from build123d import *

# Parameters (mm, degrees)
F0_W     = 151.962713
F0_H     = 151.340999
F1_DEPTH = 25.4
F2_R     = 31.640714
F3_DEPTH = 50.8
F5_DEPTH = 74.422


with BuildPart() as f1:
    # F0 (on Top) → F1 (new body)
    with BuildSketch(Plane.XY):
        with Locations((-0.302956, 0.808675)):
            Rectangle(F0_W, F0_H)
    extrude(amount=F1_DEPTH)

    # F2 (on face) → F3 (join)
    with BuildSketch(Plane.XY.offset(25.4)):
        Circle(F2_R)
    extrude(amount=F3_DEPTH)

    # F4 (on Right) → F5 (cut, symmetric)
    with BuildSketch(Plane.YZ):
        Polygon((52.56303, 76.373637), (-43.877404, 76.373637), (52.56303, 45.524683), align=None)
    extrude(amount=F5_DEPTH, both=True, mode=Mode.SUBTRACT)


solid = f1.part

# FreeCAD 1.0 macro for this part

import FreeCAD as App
import Part
import Sketcher
from FreeCAD import Vector
Q = App.Units.Quantity

doc = App.newDocument("Part")
params = doc.addObject("Spreadsheet::Sheet", "Params")
for row, (alias, value) in enumerate([
    ("pad1_length", "1 in"),
    ("pad2_length", "2 in"),
    ("pocket1_length", "5.86 in"),
], start=1):
    params.set(f"A{row}", alias)
    params.set(f"B{row}", "=" + value)
    params.setAlias(f"B{row}", alias)

body = doc.addObject("PartDesign::Body", "Body")

# Sketch on XY plane
sketch1 = body.newObject("Sketcher::SketchObject", "Sketch")
sketch1.AttachmentSupport = (doc.getObject("XY_Plane"), [""])
sketch1.MapMode = "FlatFace"
sketch1.addGeometry(Part.LineSegment(Vector(-76, 76, 0), Vector(-76, -75, 0)), False)
sketch1.addGeometry(Part.LineSegment(Vector(-76, -75, 0), Vector(76, -75, 0)), False)
sketch1.addGeometry(Part.LineSegment(Vector(76, -75, 0), Vector(76, 76, 0)), False)
sketch1.addGeometry(Part.LineSegment(Vector(76, 76, 0), Vector(-76, 76, 0)), False)
sketch1.addConstraint(Sketcher.Constraint("Coincident", 0, 2, 1, 1))
sketch1.addConstraint(Sketcher.Constraint("Coincident", 1, 2, 2, 1))
sketch1.addConstraint(Sketcher.Constraint("Coincident", 2, 2, 3, 1))
sketch1.addConstraint(Sketcher.Constraint("Coincident", 3, 2, 0, 1))
sketch1.addConstraint(Sketcher.Constraint("Vertical", 0))
sketch1.addConstraint(Sketcher.Constraint("Horizontal", 1))
sketch1.addConstraint(Sketcher.Constraint("Vertical", 2))
sketch1.addConstraint(Sketcher.Constraint("Horizontal", 3))
sketch1.addConstraint(Sketcher.Constraint("DistanceY", 0, 2, 0, 1, Q("151.340999 mm")))
sketch1.addConstraint(Sketcher.Constraint("DistanceX", -1, 1, 1, 2, Q("75.6784 mm")))
sketch1.addConstraint(Sketcher.Constraint("DistanceX", 1, 1, 1, 2, Q("151.962713 mm")))
sketch1.addConstraint(Sketcher.Constraint("DistanceY", 0, 2, -1, 1, Q("74.861824 mm")))
pad1 = body.newObject("PartDesign::Pad", "Pad")
pad1.Profile = sketch1
pad1.setExpression("Length", "Params.pad1_length")

# Sketch on XY plane
sketch2 = body.newObject("Sketcher::SketchObject", "Sketch001")
sketch2.AttachmentSupport = (doc.getObject("XY_Plane"), [""])
sketch2.MapMode = "FlatFace"
sketch2.AttachmentOffset = App.Placement(Vector(0, 0, 1 * 25.4), App.Rotation())
sketch2.addGeometry(Part.Circle(Vector(0, 0, 0), Vector(0, 0, 1), 32), False)
sketch2.addConstraint(Sketcher.Constraint("Coincident", 0, 3, -1, 1))
sketch2.addConstraint(Sketcher.Constraint("Diameter", 0, Q("63.281428 mm")))
pad2 = body.newObject("PartDesign::Pad", "Pad001")
pad2.Profile = sketch2
pad2.setExpression("Length", "Params.pad2_length")

# Sketch on YZ plane
sketch3 = body.newObject("Sketcher::SketchObject", "Sketch002")
sketch3.AttachmentSupport = (doc.getObject("YZ_Plane"), [""])
sketch3.MapMode = "FlatFace"
sketch3.addGeometry(Part.LineSegment(Vector(53, 76, 0), Vector(-44, 76, 0)), False)
sketch3.addGeometry(Part.LineSegment(Vector(-44, 76, 0), Vector(53, 46, 0)), False)
sketch3.addGeometry(Part.LineSegment(Vector(53, 46, 0), Vector(53, 76, 0)), False)
sketch3.addConstraint(Sketcher.Constraint("Coincident", 0, 2, 1, 1))
sketch3.addConstraint(Sketcher.Constraint("Coincident", 1, 2, 2, 1))
sketch3.addConstraint(Sketcher.Constraint("Coincident", 2, 2, 0, 1))
sketch3.addConstraint(Sketcher.Constraint("Horizontal", 0))
sketch3.addConstraint(Sketcher.Constraint("Vertical", 2))
sketch3.addConstraint(Sketcher.Constraint("Distance", 1, Q("101.254211 mm")))
sketch3.addConstraint(Sketcher.Constraint("DistanceX", 0, 2, 0, 1, Q("96.440434 mm")))
sketch3.addConstraint(Sketcher.Constraint("DistanceX", -1, 1, 1, 2, Q("52.56303 mm")))
sketch3.addConstraint(Sketcher.Constraint("DistanceY", -1, 1, 0, 2, Q("76.373637 mm")))
pocket1 = body.newObject("PartDesign::Pocket", "Pocket")
pocket1.Profile = sketch3
pocket1.setExpression("Length", "Params.pocket1_length")
pocket1.Midplane = True

doc.recompute()
